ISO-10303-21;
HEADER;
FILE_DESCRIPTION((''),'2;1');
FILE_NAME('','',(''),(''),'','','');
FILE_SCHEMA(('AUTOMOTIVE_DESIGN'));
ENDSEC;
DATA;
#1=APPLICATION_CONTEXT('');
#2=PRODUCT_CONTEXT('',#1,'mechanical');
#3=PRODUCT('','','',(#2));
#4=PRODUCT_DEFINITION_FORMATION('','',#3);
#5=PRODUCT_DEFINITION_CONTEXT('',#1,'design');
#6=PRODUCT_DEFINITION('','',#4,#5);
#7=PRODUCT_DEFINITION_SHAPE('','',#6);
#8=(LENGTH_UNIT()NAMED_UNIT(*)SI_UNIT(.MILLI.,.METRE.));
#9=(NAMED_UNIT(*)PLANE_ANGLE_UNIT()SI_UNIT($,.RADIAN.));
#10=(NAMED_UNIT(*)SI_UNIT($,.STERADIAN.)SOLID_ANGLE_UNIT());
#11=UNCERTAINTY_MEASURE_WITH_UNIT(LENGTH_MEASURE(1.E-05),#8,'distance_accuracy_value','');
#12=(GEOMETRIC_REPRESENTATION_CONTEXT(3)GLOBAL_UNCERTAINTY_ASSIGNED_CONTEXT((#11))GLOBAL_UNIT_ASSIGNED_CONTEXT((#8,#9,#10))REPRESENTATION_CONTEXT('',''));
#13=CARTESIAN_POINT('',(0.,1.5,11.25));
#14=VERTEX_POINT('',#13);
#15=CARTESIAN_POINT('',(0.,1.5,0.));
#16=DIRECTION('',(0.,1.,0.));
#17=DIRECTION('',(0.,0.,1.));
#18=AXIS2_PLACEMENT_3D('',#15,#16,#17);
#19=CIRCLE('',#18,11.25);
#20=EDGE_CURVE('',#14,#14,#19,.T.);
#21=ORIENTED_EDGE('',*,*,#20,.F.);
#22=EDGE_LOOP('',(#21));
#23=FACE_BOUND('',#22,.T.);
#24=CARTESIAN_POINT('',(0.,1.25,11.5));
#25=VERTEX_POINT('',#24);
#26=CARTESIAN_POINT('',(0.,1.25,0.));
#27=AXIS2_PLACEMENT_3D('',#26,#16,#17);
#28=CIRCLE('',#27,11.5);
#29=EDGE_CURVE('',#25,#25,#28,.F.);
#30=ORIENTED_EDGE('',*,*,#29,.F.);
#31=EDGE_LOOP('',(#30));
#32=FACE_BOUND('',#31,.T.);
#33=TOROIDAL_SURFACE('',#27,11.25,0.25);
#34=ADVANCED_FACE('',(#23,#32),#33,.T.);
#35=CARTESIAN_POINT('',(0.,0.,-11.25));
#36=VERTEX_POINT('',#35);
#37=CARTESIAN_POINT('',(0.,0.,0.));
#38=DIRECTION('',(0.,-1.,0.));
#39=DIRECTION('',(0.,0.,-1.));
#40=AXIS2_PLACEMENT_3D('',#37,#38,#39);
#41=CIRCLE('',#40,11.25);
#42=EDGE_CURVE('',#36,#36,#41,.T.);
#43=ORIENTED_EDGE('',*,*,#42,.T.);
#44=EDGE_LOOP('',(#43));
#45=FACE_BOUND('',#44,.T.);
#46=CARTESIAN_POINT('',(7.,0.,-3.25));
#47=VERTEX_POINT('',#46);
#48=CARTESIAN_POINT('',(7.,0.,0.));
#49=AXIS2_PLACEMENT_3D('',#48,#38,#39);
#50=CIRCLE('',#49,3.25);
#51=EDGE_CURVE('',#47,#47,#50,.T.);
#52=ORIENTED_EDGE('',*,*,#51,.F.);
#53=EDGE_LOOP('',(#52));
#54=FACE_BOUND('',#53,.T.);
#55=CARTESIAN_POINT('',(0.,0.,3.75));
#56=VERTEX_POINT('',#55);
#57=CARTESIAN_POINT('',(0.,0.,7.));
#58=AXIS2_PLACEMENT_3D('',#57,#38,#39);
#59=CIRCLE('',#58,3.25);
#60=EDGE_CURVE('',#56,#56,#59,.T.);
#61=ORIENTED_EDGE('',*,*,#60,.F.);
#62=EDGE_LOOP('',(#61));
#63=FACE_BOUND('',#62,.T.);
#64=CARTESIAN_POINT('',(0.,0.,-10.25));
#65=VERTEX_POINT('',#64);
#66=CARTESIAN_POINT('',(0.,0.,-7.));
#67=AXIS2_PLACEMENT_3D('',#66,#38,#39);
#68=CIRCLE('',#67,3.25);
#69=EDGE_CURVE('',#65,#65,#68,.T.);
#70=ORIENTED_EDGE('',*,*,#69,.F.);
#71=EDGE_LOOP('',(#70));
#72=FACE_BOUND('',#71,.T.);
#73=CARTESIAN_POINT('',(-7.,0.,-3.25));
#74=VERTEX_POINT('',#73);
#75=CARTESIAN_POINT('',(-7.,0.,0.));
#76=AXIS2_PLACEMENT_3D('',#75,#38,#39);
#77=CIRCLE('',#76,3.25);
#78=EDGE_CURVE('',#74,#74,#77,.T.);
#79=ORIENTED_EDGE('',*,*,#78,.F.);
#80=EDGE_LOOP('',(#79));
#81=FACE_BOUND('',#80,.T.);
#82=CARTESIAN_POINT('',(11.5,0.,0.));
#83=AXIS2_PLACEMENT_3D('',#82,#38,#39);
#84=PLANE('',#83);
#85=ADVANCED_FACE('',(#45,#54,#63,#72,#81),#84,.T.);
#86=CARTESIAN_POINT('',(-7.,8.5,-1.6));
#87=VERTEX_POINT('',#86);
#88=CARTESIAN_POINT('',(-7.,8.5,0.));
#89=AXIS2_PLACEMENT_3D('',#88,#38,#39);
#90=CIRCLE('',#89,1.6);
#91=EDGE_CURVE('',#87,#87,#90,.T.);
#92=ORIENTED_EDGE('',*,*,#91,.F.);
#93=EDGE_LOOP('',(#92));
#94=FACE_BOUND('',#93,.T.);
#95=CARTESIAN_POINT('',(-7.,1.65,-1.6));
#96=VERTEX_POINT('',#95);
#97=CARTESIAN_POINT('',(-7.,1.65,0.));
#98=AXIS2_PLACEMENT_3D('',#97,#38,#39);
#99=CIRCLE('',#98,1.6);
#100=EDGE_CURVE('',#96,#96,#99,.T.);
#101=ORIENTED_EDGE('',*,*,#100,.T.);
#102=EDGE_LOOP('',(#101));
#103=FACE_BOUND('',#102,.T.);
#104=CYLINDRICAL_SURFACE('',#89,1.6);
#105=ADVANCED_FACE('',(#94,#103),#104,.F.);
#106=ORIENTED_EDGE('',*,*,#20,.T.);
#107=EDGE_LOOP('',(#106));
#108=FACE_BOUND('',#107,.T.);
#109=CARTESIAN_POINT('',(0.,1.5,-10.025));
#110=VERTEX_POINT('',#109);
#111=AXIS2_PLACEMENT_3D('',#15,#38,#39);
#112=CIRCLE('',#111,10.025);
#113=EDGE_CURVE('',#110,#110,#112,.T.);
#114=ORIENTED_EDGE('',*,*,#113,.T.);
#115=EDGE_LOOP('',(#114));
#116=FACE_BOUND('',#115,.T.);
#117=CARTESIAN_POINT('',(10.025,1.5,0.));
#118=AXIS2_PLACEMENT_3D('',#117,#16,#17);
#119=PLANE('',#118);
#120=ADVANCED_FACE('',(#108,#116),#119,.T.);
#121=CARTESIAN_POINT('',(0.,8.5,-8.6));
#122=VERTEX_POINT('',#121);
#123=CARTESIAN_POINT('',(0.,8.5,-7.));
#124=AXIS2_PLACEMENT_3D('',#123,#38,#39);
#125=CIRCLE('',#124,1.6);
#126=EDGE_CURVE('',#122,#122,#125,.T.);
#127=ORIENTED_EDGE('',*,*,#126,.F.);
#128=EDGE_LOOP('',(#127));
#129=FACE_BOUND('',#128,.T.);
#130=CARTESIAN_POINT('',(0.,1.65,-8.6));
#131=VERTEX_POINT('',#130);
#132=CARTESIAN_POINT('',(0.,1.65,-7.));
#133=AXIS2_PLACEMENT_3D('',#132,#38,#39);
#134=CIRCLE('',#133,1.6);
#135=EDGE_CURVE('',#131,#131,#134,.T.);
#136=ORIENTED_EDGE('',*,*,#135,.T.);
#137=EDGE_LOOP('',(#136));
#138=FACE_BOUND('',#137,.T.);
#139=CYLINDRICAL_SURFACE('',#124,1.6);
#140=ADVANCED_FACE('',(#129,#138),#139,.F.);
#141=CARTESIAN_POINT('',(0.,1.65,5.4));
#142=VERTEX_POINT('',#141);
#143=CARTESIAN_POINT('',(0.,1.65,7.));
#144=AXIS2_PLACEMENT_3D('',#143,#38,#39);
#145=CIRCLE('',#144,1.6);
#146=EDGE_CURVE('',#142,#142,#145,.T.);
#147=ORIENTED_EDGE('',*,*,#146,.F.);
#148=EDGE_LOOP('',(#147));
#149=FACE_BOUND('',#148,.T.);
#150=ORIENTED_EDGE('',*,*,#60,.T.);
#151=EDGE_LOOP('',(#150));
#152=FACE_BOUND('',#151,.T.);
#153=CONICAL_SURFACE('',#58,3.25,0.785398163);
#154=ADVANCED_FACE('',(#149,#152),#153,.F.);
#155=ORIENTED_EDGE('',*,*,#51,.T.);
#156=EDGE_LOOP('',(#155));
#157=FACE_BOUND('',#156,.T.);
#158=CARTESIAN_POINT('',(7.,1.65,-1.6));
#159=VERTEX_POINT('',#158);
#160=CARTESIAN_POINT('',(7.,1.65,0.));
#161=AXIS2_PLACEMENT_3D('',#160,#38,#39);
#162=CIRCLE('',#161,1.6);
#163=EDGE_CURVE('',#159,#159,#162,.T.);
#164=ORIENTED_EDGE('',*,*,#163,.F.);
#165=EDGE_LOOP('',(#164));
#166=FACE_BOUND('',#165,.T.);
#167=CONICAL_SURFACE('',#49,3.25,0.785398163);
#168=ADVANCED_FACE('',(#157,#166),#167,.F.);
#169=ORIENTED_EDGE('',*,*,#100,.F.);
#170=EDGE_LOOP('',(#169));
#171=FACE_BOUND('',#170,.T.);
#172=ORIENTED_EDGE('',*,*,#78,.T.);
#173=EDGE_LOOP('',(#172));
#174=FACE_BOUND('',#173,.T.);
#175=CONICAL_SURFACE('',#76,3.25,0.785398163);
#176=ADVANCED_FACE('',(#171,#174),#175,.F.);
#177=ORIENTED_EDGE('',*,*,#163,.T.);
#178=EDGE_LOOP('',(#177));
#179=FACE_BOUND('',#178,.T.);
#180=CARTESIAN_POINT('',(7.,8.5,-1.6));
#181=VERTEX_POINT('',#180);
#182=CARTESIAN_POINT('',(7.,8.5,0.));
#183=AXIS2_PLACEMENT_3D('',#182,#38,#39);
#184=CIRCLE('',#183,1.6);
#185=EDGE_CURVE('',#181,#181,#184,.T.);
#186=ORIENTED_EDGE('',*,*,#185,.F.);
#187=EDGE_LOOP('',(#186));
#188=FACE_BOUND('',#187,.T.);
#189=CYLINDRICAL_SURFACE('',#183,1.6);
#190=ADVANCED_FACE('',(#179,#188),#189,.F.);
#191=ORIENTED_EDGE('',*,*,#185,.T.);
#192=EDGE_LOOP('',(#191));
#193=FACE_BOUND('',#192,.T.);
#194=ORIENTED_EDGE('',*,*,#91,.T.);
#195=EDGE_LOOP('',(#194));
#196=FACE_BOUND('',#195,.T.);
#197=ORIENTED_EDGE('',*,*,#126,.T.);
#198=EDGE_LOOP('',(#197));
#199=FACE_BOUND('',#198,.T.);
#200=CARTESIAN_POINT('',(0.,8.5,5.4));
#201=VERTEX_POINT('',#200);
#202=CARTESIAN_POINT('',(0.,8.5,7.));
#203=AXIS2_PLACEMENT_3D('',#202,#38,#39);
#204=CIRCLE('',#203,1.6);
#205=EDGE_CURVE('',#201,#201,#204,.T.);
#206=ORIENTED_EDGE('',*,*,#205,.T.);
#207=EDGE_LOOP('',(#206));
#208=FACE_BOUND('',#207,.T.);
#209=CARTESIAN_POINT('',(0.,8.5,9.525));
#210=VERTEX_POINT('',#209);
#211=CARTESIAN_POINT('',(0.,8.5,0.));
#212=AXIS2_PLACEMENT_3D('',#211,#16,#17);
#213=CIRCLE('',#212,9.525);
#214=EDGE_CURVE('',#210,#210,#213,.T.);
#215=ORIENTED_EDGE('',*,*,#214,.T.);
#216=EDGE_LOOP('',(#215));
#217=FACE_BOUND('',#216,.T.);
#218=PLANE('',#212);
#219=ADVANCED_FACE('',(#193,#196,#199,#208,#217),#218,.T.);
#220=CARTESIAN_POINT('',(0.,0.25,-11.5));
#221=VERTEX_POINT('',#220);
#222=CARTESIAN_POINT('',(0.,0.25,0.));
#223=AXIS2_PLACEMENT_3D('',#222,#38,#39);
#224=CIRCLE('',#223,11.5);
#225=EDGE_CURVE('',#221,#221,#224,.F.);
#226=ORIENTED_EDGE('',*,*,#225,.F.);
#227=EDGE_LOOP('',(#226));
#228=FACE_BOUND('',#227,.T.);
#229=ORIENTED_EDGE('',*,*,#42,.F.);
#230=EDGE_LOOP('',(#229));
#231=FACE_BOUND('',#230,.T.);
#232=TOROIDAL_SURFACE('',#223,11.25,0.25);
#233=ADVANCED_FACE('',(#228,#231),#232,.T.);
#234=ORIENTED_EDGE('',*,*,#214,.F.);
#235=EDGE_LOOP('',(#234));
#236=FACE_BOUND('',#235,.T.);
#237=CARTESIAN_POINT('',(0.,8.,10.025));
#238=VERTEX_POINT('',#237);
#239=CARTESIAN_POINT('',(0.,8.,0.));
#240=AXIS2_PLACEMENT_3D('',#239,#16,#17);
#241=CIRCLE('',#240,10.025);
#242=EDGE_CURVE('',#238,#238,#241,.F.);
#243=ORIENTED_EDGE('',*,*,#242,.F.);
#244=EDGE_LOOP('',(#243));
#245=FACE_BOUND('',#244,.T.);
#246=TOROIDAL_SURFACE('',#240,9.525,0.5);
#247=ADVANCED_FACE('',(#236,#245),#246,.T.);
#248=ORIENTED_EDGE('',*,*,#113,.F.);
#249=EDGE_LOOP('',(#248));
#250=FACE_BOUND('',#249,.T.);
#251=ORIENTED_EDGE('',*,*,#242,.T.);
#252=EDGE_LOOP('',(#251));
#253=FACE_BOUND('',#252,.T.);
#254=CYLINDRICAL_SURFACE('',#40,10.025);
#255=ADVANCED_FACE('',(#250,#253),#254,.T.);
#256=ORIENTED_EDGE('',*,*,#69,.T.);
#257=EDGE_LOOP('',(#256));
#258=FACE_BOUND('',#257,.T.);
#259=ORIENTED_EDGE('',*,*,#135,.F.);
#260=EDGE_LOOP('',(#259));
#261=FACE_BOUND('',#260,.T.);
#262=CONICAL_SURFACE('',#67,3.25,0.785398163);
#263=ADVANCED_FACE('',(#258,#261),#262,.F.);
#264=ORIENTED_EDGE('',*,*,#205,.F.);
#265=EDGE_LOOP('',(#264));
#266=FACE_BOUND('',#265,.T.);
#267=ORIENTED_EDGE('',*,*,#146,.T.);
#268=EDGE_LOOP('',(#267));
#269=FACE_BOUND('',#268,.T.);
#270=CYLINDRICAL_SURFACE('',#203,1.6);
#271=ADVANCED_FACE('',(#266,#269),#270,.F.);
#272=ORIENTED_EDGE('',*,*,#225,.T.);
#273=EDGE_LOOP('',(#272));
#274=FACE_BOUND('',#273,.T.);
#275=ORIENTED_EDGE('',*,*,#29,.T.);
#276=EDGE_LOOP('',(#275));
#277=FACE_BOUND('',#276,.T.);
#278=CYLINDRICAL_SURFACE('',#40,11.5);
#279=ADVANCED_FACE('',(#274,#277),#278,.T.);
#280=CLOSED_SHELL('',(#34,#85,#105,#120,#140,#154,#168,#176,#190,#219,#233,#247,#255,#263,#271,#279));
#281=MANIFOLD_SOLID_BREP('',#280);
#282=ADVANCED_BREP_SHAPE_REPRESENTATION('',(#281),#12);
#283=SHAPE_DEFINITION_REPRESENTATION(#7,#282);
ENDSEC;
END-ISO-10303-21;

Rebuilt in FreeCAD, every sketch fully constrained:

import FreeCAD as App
import Part
import Sketcher


def edges_at(feature, points):
    """Names of the edges that pass closest to the given points."""
    edges = feature.Shape.Edges
    near = lambda p: min(range(len(edges)), key=lambda i: edges[i].distToShape(Part.Vertex(*p))[0])
    return sorted({f"Edge{near(p) + 1}" for p in points})


def add_polygon(sketch, points):
    """Adds a closed chain of lines whose ends are joined by coincident constraints."""
    first, n = sketch.GeometryCount, len(points)
    for a, b in zip(points, points[1:] + points[:1]):
        sketch.addGeometry(Part.LineSegment(App.Vector(*a, 0), App.Vector(*b, 0)), False)
    for i in range(n):
        sketch.addConstraint(Sketcher.Constraint("Coincident", first + i, 2, first + (i + 1) % n, 1))

doc = App.newDocument("Part")
params = doc.addObject("Spreadsheet::Sheet", "Params")
for row, (alias, value) in enumerate([
    ("sketch1_height", "7 mm"),
    ("sketch1_width", "11.5 mm"),
    ("sketch1_height2", "8.5 mm"),
    ("revolution_angle", "360 deg"),
    ("sketch2_diameter", "3.2 mm"),
    ("sketch3_diameter", "2.8 mm"),
    ("hole_diameter", "2.8 mm"),
    ("hole_csink_diameter", "6.5 mm"),
    ("fillet_radius", "0.5 mm"),
    ("fillet2_radius", "0.25 mm"),
], start=1):
    params.set(f"A{row}", alias)
    params.set(f"B{row}", "=" + value)
    params.setAlias(f"B{row}", alias)

body = doc.addObject("PartDesign::Body", "Body")

# Sketch on XY plane
sketch1 = body.newObject("Sketcher::SketchObject", "Sketch")
sketch1.AttachmentSupport = (doc.getObject("XY_Plane"), [""])
sketch1.MapMode = "FlatFace"
add_polygon(sketch1, [(10, 8.5), (0, 8.5), (0, 0), (11.5, 0), (11.5, 1.5), (10, 1.5)])  # lines 0-5
sketch1.addConstraint(Sketcher.Constraint("Horizontal", 0))
sketch1.addConstraint(Sketcher.Constraint("Vertical", 1))
sketch1.addConstraint(Sketcher.Constraint("Horizontal", 2))
sketch1.addConstraint(Sketcher.Constraint("Vertical", 3))
sketch1.addConstraint(Sketcher.Constraint("Horizontal", 4))
sketch1.addConstraint(Sketcher.Constraint("Vertical", 5))
sketch1.addConstraint(Sketcher.Constraint("Coincident", 1, 2, -1, 1))
sketch1.addConstraint(Sketcher.Constraint("DistanceY", 5, 1, 5, 2, 7.0))
sketch1.addConstraint(Sketcher.Constraint("DistanceX", 2, 1, 2, 2, 11.5))
sketch1.addConstraint(Sketcher.Constraint("DistanceY", 1, 2, 1, 1, 8.5))
sketch1.addConstraint(Sketcher.Constraint("DistanceX", 0, 2, 0, 1, 10.025))
sketch1.setExpression("Constraints[13]", "Params.sketch1_height")
sketch1.setExpression("Constraints[14]", "Params.sketch1_width")
sketch1.setExpression("Constraints[15]", "Params.sketch1_height2")
revolution = body.newObject("PartDesign::Revolution", "Revolution")
revolution.Profile = sketch1
revolution.ReferenceAxis = (sketch1, ["V_Axis"])
revolution.setExpression("Angle", "Params.revolution_angle")

# Sketch on XZ plane
sketch2 = body.newObject("Sketcher::SketchObject", "Sketch001")
sketch2.AttachmentSupport = (doc.getObject("XZ_Plane"), [""])
sketch2.MapMode = "FlatFace"
sketch2.addGeometry(Part.Circle(App.Vector(0, 7, 0), App.Vector(0, 0, 1), 1.6), False)
sketch2.addGeometry(Part.Circle(App.Vector(7, 0, 0), App.Vector(0, 0, 1), 1.6), False)
sketch2.addGeometry(Part.Circle(App.Vector(0, -7, 0), App.Vector(0, 0, 1), 1.6), False)
sketch2.addGeometry(Part.Circle(App.Vector(-7, 0, 0), App.Vector(0, 0, 1), 1.6), False)
sketch2.addConstraint(Sketcher.Constraint("Equal", 0, 1))
sketch2.addConstraint(Sketcher.Constraint("Equal", 1, 2))
sketch2.addConstraint(Sketcher.Constraint("Equal", 2, 3))
sketch2.addConstraint(Sketcher.Constraint("Symmetric", 0, 3, 2, 3, -1, 1))
sketch2.addConstraint(Sketcher.Constraint("Symmetric", 1, 3, 3, 3, -1, 1))
sketch2.addConstraint(Sketcher.Constraint("PointOnObject", 0, 3, -2))
sketch2.addConstraint(Sketcher.Constraint("PointOnObject", 1, 3, -1))
sketch2.addConstraint(Sketcher.Constraint("Diameter", 0, 3.2))
sketch2.addConstraint(Sketcher.Constraint("DistanceY", -1, 1, 0, 3, 7.0))
sketch2.addConstraint(Sketcher.Constraint("DistanceX", -1, 1, 1, 3, 7.0))
sketch2.setExpression("Constraints[7]", "Params.sketch2_diameter")
pocket1 = body.newObject("PartDesign::Pocket", "Pocket")
pocket1.Profile = sketch2
pocket1.Type = "ThroughAll"

# Sketch on XZ plane
sketch3 = body.newObject("Sketcher::SketchObject", "Sketch002")
sketch3.AttachmentSupport = (doc.getObject("XZ_Plane"), [""])
sketch3.MapMode = "FlatFace"
sketch3.addGeometry(Part.Circle(App.Vector(0, 7, 0), App.Vector(0, 0, 1), 1.4), False)
sketch3.addGeometry(Part.Circle(App.Vector(7, 0, 0), App.Vector(0, 0, 1), 1.4), False)
sketch3.addGeometry(Part.Circle(App.Vector(0, -7, 0), App.Vector(0, 0, 1), 1.4), False)
sketch3.addGeometry(Part.Circle(App.Vector(-7, 0, 0), App.Vector(0, 0, 1), 1.4), False)
sketch3.addConstraint(Sketcher.Constraint("Equal", 0, 1))
sketch3.addConstraint(Sketcher.Constraint("Equal", 1, 2))
sketch3.addConstraint(Sketcher.Constraint("Equal", 2, 3))
sketch3.addConstraint(Sketcher.Constraint("Symmetric", 0, 3, 2, 3, -1, 1))
sketch3.addConstraint(Sketcher.Constraint("Symmetric", 1, 3, 3, 3, -1, 1))
sketch3.addConstraint(Sketcher.Constraint("PointOnObject", 0, 3, -2))
sketch3.addConstraint(Sketcher.Constraint("PointOnObject", 1, 3, -1))
sketch3.addConstraint(Sketcher.Constraint("Diameter", 0, 2.8))
sketch3.addConstraint(Sketcher.Constraint("DistanceY", -1, 1, 0, 3, 7.0))
sketch3.addConstraint(Sketcher.Constraint("DistanceX", -1, 1, 1, 3, 7.0))
sketch3.setExpression("Constraints[7]", "Params.sketch3_diameter")
doc.recompute()
hole = body.newObject("PartDesign::Hole", "Hole")
hole.Profile = sketch3
hole.ThreadType = "None"
hole.setExpression("Diameter", "Params.hole_diameter")
hole.DepthType = "ThroughAll"
hole.HoleCutType = "Countersink"
hole.setExpression("HoleCutDiameter", "Params.hole_csink_diameter")
hole.HoleCutCountersinkAngle = 90
doc.recompute()

fillet = body.newObject("PartDesign::Fillet", "Fillet")
fillet.Base = (hole, edges_at(hole, [(0, 8.5, 10.025)]))
fillet.setExpression("Radius", "Params.fillet_radius")
doc.recompute()

fillet2 = body.newObject("PartDesign::Fillet", "Fillet001")
fillet2.Base = (fillet, edges_at(fillet, [(0, 0, 11.5), (0, 1.5, 11.5)]))
fillet2.setExpression("Radius", "Params.fillet2_radius")

doc.recompute()
